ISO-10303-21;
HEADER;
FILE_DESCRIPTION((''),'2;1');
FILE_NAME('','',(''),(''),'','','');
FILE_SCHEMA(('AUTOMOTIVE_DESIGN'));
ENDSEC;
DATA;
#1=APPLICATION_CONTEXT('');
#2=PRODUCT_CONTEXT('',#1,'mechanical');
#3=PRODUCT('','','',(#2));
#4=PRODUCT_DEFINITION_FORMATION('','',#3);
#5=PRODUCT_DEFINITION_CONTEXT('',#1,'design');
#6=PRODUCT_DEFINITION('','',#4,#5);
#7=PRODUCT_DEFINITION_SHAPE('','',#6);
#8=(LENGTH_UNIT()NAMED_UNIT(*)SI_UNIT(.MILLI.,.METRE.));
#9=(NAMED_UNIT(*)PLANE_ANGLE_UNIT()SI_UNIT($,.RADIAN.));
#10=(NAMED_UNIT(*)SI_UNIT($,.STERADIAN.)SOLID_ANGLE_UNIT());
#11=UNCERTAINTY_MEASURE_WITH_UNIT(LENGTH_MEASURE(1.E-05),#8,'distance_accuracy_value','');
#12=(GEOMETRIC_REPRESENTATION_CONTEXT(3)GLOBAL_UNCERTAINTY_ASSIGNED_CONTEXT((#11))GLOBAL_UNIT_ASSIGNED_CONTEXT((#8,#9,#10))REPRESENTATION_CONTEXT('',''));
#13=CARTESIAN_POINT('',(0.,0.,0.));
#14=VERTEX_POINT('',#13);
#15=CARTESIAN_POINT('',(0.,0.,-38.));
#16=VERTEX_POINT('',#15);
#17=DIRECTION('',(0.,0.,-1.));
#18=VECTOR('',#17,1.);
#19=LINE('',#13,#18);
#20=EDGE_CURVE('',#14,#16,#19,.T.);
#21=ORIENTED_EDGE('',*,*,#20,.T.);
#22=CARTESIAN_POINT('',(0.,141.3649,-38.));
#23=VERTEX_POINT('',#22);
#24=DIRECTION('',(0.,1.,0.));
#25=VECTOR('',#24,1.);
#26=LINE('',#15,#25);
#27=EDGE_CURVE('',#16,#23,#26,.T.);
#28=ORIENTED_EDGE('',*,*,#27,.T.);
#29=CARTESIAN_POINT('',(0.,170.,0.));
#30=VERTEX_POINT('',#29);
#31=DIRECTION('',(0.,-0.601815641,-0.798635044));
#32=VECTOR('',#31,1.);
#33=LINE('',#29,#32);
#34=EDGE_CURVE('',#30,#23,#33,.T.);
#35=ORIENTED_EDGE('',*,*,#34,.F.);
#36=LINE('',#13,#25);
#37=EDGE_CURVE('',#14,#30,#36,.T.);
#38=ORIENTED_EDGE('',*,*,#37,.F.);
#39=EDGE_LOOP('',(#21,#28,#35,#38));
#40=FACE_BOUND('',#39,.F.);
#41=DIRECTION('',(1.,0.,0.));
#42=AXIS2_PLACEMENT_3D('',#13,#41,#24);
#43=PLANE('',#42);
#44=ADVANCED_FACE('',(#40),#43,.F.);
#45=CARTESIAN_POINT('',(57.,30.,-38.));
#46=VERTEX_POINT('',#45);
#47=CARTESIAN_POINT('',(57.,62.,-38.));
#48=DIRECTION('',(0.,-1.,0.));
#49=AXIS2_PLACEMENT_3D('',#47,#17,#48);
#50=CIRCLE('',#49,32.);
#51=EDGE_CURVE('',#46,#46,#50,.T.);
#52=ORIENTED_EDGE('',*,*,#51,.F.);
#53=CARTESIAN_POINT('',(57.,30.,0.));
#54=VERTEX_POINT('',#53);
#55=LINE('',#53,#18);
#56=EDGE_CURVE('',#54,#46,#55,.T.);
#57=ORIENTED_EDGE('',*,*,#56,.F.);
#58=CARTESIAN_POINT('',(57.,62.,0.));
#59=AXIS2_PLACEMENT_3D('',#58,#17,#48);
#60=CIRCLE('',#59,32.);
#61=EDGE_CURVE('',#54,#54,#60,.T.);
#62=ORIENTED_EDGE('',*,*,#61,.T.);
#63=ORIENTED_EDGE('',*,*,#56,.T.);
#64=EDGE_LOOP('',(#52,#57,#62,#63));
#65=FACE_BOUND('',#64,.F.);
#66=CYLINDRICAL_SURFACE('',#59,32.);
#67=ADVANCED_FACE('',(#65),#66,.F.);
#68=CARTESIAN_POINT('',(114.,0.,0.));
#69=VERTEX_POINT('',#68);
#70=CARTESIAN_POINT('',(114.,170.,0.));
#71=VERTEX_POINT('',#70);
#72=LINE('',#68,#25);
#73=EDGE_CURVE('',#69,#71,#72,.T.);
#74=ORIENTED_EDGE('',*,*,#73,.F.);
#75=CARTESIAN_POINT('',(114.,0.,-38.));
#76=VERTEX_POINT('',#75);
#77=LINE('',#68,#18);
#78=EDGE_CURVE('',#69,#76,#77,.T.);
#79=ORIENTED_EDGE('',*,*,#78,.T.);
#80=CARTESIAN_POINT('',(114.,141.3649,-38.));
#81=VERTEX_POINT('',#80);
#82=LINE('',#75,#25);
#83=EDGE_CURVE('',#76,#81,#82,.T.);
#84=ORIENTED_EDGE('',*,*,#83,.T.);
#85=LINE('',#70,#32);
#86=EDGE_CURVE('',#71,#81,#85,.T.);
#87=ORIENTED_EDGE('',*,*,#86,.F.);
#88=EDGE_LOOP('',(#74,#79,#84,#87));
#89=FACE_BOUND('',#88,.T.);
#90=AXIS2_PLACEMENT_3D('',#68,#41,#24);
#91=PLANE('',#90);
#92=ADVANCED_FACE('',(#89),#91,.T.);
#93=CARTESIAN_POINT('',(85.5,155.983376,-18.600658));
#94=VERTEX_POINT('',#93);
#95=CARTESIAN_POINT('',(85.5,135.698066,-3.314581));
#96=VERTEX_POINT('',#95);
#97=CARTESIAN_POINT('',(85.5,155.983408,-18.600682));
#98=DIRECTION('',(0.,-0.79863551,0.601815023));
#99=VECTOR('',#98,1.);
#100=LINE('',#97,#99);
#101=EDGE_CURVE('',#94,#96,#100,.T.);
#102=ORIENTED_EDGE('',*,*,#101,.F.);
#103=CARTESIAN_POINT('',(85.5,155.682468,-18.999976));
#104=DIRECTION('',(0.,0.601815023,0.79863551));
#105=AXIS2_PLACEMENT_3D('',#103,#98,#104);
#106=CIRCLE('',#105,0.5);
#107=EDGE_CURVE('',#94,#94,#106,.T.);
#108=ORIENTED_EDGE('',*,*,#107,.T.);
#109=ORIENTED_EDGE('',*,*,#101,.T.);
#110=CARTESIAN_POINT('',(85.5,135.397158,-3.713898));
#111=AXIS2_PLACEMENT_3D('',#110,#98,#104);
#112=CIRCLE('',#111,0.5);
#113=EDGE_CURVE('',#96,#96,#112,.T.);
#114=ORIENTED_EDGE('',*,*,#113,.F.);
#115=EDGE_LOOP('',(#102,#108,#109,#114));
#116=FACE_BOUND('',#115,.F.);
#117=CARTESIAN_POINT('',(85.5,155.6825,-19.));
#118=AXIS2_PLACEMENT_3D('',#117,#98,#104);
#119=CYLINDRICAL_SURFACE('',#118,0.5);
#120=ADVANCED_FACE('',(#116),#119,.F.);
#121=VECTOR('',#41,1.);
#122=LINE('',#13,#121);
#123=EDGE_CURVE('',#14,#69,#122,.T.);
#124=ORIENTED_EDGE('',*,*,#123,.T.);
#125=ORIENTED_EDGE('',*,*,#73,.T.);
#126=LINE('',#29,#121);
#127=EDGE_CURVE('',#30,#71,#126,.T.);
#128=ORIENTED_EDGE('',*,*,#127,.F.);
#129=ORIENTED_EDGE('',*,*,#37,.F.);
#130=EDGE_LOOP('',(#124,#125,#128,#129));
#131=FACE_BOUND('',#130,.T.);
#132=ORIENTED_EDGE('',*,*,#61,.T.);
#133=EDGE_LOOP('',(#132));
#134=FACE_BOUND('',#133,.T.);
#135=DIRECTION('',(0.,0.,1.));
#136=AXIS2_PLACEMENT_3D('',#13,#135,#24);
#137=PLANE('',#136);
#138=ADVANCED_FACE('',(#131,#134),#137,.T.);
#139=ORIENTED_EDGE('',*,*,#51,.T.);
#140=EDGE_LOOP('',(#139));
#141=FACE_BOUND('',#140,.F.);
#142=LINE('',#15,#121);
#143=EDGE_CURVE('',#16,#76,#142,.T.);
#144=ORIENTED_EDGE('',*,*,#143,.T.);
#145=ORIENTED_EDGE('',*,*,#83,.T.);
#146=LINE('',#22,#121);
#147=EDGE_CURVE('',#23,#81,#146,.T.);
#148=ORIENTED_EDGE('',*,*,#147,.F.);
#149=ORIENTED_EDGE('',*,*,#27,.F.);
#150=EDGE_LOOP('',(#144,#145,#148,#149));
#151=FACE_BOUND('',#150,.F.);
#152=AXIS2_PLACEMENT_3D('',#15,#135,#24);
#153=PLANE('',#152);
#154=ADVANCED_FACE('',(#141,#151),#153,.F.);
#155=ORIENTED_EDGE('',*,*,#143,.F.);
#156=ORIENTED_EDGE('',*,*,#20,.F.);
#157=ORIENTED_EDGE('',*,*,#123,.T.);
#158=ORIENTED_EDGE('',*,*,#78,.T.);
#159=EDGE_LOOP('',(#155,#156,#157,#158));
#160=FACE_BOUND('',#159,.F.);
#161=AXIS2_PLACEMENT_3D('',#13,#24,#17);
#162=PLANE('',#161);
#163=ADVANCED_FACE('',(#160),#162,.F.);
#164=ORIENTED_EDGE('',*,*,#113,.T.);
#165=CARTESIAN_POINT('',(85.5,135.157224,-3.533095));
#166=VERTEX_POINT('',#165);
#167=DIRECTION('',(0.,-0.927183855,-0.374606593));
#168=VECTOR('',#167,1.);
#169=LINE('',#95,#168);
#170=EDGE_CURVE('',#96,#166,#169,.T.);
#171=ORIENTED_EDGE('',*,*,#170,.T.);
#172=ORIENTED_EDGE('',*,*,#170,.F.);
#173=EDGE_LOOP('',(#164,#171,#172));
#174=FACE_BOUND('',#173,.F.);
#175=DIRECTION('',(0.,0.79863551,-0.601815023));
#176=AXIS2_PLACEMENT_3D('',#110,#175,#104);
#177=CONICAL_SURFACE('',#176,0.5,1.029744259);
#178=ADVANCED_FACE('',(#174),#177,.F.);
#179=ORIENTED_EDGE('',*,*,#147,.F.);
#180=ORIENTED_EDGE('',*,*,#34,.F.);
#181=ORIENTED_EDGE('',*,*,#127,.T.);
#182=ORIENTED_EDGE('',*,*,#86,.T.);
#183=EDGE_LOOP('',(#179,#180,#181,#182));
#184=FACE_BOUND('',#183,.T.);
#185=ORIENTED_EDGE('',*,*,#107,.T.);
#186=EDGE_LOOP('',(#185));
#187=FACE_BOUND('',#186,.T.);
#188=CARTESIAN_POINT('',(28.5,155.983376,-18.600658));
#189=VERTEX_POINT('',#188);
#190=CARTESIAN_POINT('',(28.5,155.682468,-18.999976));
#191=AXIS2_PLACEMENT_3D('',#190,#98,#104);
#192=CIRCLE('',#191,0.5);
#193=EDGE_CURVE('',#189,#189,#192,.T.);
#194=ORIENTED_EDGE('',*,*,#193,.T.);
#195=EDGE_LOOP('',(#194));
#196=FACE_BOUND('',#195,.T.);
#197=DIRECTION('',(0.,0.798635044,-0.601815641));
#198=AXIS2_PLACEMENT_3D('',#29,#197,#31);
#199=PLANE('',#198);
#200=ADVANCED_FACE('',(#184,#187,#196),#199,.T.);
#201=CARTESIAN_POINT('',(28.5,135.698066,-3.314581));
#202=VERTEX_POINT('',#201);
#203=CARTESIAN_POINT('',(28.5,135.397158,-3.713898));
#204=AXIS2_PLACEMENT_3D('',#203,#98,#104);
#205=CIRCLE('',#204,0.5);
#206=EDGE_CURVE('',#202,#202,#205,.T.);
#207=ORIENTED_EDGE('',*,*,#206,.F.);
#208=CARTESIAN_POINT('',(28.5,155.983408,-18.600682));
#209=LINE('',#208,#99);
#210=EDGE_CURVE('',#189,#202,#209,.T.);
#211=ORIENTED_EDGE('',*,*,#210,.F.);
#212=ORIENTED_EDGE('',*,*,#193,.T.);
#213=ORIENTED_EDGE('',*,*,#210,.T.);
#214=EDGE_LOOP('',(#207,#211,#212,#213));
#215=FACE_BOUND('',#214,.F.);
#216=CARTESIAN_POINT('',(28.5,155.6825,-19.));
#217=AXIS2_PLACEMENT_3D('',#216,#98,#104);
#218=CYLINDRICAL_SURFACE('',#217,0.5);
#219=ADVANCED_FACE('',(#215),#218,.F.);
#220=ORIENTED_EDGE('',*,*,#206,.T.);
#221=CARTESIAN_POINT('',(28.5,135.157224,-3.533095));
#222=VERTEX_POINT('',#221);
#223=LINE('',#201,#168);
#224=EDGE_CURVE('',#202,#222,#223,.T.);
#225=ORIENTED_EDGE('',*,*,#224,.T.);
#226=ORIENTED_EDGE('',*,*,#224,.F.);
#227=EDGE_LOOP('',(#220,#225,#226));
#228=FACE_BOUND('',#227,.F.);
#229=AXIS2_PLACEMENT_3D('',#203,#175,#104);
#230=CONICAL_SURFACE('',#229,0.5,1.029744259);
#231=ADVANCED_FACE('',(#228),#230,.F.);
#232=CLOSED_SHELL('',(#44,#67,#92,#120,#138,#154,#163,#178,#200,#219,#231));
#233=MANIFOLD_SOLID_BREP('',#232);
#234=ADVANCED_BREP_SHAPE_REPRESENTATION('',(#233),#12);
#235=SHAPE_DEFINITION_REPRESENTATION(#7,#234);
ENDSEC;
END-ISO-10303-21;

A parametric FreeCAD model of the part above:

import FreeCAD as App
import Part
import Sketcher
Q = App.Units.Quantity


def add_polygon(sketch, points):
    """Adds a closed chain of lines whose ends are joined by coincident constraints."""
    first, n = sketch.GeometryCount, len(points)
    for a, b in zip(points, points[1:] + points[:1]):
        sketch.addGeometry(Part.LineSegment(App.Vector(*a, 0), App.Vector(*b, 0)), False)
    for i in range(n):
        sketch.addConstraint(Sketcher.Constraint("Coincident", first + i, 2, first + (i + 1) % n, 1))

doc = App.newDocument("Part")
body = doc.addObject("PartDesign::Body", "Body")

sketch1 = body.newObject("Sketcher::SketchObject", "Sketch")
sketch1.AttachmentSupport = (doc.getObject("YZ_Plane"), [""])
sketch1.MapMode = "FlatFace"
add_polygon(sketch1, [(170, 0), (0, 0), (0, -38), (141, -38)])
sketch1.addConstraint([
    Sketcher.Constraint("Horizontal", 0),
    Sketcher.Constraint("Vertical", 1),
    Sketcher.Constraint("Horizontal", 2),
    Sketcher.Constraint("Coincident", 0, 2, -1, 1),
    Sketcher.Constraint("DistanceX", 0, 2, 0, 1, 170.0),
    Sketcher.Constraint("DistanceY", 1, 2, 1, 1, 38.0),
    Sketcher.Constraint("Angle", 3, Q("53 deg")),
])
pad1 = body.newObject("PartDesign::Pad", "Pad")
pad1.Profile = sketch1
pad1.Length = 114

sketch2 = body.newObject("Sketcher::SketchObject", "Sketch001")
sketch2.Placement = App.Placement(App.Vector(0, 108.429192, -81.707257), App.Rotation(App.Vector(0, 0.601815023, 0.79863551), App.Vector(1, 0, 0), App.Vector(0, 0.79863551, -0.601815023), "ZXY"))
sketch2.addGeometry([
    Part.Circle(App.Vector(78.5, 28.5, 0), App.Vector(0, 0, 1), 0.5),
    Part.Circle(App.Vector(78.5, 85.5, 0), App.Vector(0, 0, 1), 0.5),
], False)
sketch2.addConstraint([
    Sketcher.Constraint("Equal", 0, 1),
    Sketcher.Constraint("Vertical", 0, 3, 1, 3),
    Sketcher.Constraint("Diameter", 0, 1.0),
    Sketcher.Constraint("DistanceY", 0, 3, 1, 3, 57.0),
    Sketcher.Constraint("DistanceY", -1, 1, 0, 3, 28.5),
    Sketcher.Constraint("DistanceX", -1, 1, 0, 3, 78.518),
])
doc.recompute()
hole = body.newObject("PartDesign::Hole", "Hole")
hole.Profile = sketch2
hole.ThreadType = "None"
hole.Diameter = 1
hole.DepthType = "Dimension"
hole.Depth = 25.4
hole.DrillPoint = "Angled"
hole.DrillPointAngle = 118

sketch3 = body.newObject("Sketcher::SketchObject", "Sketch002")
sketch3.AttachmentSupport = (doc.getObject("XY_Plane"), [""])
sketch3.MapMode = "FlatFace"
sketch3.addGeometry(Part.Circle(App.Vector(57, 62, 0), App.Vector(0, 0, 1), 32), False)
sketch3.addConstraint([
    Sketcher.Constraint("Diameter", 0, 64.0),
    Sketcher.Constraint("DistanceX", -1, 1, 0, 3, 57.0),
    Sketcher.Constraint("DistanceY", -1, 1, 0, 3, 62.0),
])
doc.recompute()
hole2 = body.newObject("PartDesign::Hole", "Hole001")
hole2.Profile = sketch3
hole2.ThreadType = "None"
hole2.Diameter = 64
hole2.DepthType = "ThroughAll"

doc.recompute()
